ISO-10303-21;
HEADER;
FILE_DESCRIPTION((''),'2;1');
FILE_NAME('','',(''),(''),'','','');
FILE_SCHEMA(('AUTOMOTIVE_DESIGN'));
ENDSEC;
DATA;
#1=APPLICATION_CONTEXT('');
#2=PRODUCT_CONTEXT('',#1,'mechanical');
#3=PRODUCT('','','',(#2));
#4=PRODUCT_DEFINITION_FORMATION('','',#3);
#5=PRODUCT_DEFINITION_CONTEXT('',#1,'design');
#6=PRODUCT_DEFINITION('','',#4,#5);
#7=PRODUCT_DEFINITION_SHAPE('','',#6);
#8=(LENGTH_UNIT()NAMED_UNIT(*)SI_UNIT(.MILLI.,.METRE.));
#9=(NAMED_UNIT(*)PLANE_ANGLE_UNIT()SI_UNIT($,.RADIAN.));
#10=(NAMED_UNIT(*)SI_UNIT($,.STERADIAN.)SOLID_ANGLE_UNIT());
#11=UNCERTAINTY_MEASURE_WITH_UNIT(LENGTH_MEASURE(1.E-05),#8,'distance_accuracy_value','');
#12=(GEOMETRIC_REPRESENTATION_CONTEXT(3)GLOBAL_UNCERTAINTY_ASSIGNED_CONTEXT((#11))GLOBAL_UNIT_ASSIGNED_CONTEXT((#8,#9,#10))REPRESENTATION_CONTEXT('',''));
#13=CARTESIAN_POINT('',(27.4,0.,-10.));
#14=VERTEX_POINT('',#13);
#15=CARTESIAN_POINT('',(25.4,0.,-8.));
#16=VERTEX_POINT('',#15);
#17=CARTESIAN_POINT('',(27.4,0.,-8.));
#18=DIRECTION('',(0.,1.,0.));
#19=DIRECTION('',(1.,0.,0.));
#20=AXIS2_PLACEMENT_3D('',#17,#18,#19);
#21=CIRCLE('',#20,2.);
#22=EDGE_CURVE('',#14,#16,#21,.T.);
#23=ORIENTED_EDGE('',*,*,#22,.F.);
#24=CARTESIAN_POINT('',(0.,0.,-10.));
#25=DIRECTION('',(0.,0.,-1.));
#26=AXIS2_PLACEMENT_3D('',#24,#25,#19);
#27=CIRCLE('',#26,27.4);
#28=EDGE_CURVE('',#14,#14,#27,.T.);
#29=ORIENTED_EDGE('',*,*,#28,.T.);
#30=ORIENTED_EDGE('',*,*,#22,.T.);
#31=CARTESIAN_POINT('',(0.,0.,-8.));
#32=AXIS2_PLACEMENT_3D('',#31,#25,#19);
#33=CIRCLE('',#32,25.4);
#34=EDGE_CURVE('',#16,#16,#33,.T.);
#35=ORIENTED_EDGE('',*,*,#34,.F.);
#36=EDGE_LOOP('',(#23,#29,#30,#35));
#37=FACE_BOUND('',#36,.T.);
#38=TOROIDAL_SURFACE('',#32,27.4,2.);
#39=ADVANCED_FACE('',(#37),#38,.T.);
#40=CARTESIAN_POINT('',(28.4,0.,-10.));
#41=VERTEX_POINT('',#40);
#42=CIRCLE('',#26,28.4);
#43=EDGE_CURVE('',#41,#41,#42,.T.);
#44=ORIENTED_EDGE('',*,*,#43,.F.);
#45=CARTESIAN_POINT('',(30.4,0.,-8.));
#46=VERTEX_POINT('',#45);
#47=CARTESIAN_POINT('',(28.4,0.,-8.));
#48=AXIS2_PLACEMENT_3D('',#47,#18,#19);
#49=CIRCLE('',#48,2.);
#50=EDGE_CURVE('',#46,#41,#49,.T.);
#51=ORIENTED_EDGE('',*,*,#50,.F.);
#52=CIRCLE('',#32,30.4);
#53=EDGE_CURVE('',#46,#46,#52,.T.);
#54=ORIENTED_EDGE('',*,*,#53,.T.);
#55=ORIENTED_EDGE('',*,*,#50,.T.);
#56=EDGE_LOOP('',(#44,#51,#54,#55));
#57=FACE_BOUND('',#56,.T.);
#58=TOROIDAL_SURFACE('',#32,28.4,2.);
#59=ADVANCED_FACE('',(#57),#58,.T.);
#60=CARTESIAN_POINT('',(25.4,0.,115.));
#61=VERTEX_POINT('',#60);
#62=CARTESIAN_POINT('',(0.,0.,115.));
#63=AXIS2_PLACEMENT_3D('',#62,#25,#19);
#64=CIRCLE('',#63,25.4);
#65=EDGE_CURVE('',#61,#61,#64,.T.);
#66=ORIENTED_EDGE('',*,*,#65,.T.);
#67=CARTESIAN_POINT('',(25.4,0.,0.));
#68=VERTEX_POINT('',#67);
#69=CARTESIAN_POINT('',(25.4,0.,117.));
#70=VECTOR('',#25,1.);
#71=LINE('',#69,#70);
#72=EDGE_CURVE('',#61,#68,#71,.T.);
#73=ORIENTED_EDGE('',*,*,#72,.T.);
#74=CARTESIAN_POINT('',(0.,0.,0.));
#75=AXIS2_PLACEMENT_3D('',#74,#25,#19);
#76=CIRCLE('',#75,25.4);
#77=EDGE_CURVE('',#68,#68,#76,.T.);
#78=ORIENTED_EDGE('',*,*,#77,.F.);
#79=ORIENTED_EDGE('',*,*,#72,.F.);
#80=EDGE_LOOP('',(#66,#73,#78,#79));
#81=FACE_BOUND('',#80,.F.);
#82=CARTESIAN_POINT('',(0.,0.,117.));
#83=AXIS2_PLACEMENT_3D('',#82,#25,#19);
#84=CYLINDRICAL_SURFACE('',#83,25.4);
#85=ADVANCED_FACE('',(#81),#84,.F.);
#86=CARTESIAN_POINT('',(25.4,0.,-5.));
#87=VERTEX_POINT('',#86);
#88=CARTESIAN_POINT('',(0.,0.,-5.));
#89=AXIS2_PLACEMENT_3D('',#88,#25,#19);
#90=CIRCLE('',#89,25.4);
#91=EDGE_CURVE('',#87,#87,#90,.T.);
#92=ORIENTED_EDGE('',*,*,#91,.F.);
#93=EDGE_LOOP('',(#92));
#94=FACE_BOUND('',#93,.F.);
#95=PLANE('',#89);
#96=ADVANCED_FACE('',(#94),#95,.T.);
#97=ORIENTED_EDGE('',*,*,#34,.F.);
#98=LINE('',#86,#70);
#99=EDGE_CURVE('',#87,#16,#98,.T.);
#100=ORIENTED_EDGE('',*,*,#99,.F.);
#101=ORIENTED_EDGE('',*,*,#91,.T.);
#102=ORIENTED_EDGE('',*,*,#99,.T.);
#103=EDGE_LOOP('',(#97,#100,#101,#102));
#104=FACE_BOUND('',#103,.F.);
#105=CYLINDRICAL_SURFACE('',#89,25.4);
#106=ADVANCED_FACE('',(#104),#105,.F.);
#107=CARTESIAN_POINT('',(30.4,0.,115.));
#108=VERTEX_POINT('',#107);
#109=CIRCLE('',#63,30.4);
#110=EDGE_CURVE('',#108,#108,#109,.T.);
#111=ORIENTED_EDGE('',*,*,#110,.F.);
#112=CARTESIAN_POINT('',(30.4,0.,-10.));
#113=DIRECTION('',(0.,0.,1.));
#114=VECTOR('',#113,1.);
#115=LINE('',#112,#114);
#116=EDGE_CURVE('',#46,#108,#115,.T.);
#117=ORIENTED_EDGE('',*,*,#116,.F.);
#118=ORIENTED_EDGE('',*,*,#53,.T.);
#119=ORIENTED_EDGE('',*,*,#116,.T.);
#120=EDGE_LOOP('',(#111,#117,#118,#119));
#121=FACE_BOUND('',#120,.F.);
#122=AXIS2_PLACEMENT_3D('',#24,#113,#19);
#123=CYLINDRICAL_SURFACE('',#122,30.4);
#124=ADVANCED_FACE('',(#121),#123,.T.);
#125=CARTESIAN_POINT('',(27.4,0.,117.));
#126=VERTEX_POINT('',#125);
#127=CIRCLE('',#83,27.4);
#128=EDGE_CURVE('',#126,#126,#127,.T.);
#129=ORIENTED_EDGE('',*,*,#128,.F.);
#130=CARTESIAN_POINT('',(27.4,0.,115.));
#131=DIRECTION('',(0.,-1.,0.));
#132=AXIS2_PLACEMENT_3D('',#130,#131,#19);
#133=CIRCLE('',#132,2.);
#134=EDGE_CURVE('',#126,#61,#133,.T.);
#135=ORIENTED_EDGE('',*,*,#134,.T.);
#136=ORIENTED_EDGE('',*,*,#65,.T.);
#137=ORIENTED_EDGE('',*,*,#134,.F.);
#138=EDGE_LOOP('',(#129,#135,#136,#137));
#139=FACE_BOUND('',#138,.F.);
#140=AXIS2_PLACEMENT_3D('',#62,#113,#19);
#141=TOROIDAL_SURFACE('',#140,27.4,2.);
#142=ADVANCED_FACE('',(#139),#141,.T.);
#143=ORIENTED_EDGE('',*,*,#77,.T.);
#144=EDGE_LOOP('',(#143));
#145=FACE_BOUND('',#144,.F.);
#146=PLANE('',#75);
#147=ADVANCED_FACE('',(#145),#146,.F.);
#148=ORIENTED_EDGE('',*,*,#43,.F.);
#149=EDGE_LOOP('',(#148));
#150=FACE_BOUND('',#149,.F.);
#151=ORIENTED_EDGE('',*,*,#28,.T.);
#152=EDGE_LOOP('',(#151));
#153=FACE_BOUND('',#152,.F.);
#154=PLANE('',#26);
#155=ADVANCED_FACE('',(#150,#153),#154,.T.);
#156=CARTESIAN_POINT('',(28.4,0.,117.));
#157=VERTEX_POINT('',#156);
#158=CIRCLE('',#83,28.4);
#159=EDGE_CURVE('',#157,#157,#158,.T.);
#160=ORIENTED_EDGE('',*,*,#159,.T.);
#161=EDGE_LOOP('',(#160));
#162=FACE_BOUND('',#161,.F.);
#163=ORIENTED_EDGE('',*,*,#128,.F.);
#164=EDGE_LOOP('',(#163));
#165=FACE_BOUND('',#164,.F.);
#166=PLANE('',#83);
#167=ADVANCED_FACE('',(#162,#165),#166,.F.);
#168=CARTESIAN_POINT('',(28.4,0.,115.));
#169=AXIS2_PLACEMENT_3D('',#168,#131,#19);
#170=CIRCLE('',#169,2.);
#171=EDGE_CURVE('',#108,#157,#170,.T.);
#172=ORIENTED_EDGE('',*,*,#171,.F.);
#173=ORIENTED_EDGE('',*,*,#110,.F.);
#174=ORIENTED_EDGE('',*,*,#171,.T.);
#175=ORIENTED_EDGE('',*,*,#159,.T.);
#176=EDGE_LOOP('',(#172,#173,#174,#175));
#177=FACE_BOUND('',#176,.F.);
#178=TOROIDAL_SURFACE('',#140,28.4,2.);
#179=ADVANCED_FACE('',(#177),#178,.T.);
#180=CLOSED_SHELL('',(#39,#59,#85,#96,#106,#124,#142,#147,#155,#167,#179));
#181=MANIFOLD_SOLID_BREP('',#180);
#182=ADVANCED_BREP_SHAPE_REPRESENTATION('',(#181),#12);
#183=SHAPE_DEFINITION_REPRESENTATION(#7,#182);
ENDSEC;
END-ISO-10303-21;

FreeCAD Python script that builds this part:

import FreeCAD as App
import Part
import Sketcher

V = App.Vector
Q = App.Units.Quantity


def edges_at(feature, points):
    """Names of the edges that pass closest to the given points."""
    edges = feature.Shape.Edges
    near = lambda p: min(range(len(edges)), key=lambda i: edges[i].distToShape(Part.Vertex(*p))[0])
    return sorted({f"Edge{near(p) + 1}" for p in points})

doc = App.newDocument("Part")
body = doc.addObject("PartDesign::Body", "Body")

sketch1 = doc.addObject("Sketcher::SketchObject", "Sketch")
body.addObject(sketch1)
sketch1.AttachmentSupport = (doc.XZ_Plane, [""])
sketch1.MapMode = "FlatFace"
sketch1.addGeometry(Part.LineSegment(V(25, 0, 0), V(0, 0, 0)), False)
sketch1.addGeometry(Part.LineSegment(V(0, 0, 0), V(0, -5, 0)), False)
sketch1.addGeometry(Part.LineSegment(V(0, -5, 0), V(25, -5, 0)), False)
sketch1.addGeometry(Part.LineSegment(V(25, -5, 0), V(25, -10, 0)), False)
sketch1.addGeometry(Part.LineSegment(V(25, -10, 0), V(30, -10, 0)), False)
sketch1.addGeometry(Part.LineSegment(V(30, -10, 0), V(30, 117, 0)), False)
sketch1.addGeometry(Part.LineSegment(V(30, 117, 0), V(25, 117, 0)), False)
sketch1.addGeometry(Part.LineSegment(V(25, 117, 0), V(25, 0, 0)), False)
sketch1.addConstraint(Sketcher.Constraint("Coincident", 0, 2, 1, 1))
sketch1.addConstraint(Sketcher.Constraint("Coincident", 1, 2, 2, 1))
sketch1.addConstraint(Sketcher.Constraint("Coincident", 2, 2, 3, 1))
sketch1.addConstraint(Sketcher.Constraint("Coincident", 3, 2, 4, 1))
sketch1.addConstraint(Sketcher.Constraint("Coincident", 4, 2, 5, 1))
sketch1.addConstraint(Sketcher.Constraint("Coincident", 5, 2, 6, 1))
sketch1.addConstraint(Sketcher.Constraint("Coincident", 6, 2, 7, 1))
sketch1.addConstraint(Sketcher.Constraint("Coincident", 7, 2, 0, 1))
sketch1.addConstraint(Sketcher.Constraint("Horizontal", 0))
sketch1.addConstraint(Sketcher.Constraint("Vertical", 1))
sketch1.addConstraint(Sketcher.Constraint("Horizontal", 2))
sketch1.addConstraint(Sketcher.Constraint("Vertical", 3))
sketch1.addConstraint(Sketcher.Constraint("Horizontal", 4))
sketch1.addConstraint(Sketcher.Constraint("Vertical", 5))
sketch1.addConstraint(Sketcher.Constraint("Horizontal", 6))
sketch1.addConstraint(Sketcher.Constraint("Vertical", 7))
sketch1.addConstraint(Sketcher.Constraint("Coincident", 0, 2, -1, 1))
sketch1.addConstraint(Sketcher.Constraint("Vertical", 3, 2, 6, 2))
sketch1.addConstraint(Sketcher.Constraint("Equal", 6, 1))
sketch1.addConstraint(Sketcher.Constraint("Equal", 1, 3))
sketch1.addConstraint(Sketcher.Constraint("DistanceX", 4, 1, 4, 2, Q("5 mm")))
sketch1.addConstraint(Sketcher.Constraint("DistanceY", 5, 1, 5, 2, Q("127 mm")))
sketch1.addConstraint(Sketcher.Constraint("DistanceX", 0, 2, 0, 1, Q("25.4 mm")))
revolution = doc.addObject("PartDesign::Revolution", "Revolution")
body.addObject(revolution)
revolution.Profile = sketch1
revolution.ReferenceAxis = (sketch1, ["V_Axis"])
revolution.Angle = 360
doc.recompute()

fillet = doc.addObject("PartDesign::Fillet", "Fillet")
body.addObject(fillet)
fillet.Base = (revolution, edges_at(revolution, [(-30.4, 0, 117), (-25.4, 0, 117)]))
fillet.Radius = 2
doc.recompute()

fillet2 = doc.addObject("PartDesign::Fillet", "Fillet001")
body.addObject(fillet2)
fillet2.Base = (fillet, edges_at(fillet, [(-25.4, 0, -10), (-30.4, 0, -10)]))
fillet2.Radius = 2

doc.recompute()
